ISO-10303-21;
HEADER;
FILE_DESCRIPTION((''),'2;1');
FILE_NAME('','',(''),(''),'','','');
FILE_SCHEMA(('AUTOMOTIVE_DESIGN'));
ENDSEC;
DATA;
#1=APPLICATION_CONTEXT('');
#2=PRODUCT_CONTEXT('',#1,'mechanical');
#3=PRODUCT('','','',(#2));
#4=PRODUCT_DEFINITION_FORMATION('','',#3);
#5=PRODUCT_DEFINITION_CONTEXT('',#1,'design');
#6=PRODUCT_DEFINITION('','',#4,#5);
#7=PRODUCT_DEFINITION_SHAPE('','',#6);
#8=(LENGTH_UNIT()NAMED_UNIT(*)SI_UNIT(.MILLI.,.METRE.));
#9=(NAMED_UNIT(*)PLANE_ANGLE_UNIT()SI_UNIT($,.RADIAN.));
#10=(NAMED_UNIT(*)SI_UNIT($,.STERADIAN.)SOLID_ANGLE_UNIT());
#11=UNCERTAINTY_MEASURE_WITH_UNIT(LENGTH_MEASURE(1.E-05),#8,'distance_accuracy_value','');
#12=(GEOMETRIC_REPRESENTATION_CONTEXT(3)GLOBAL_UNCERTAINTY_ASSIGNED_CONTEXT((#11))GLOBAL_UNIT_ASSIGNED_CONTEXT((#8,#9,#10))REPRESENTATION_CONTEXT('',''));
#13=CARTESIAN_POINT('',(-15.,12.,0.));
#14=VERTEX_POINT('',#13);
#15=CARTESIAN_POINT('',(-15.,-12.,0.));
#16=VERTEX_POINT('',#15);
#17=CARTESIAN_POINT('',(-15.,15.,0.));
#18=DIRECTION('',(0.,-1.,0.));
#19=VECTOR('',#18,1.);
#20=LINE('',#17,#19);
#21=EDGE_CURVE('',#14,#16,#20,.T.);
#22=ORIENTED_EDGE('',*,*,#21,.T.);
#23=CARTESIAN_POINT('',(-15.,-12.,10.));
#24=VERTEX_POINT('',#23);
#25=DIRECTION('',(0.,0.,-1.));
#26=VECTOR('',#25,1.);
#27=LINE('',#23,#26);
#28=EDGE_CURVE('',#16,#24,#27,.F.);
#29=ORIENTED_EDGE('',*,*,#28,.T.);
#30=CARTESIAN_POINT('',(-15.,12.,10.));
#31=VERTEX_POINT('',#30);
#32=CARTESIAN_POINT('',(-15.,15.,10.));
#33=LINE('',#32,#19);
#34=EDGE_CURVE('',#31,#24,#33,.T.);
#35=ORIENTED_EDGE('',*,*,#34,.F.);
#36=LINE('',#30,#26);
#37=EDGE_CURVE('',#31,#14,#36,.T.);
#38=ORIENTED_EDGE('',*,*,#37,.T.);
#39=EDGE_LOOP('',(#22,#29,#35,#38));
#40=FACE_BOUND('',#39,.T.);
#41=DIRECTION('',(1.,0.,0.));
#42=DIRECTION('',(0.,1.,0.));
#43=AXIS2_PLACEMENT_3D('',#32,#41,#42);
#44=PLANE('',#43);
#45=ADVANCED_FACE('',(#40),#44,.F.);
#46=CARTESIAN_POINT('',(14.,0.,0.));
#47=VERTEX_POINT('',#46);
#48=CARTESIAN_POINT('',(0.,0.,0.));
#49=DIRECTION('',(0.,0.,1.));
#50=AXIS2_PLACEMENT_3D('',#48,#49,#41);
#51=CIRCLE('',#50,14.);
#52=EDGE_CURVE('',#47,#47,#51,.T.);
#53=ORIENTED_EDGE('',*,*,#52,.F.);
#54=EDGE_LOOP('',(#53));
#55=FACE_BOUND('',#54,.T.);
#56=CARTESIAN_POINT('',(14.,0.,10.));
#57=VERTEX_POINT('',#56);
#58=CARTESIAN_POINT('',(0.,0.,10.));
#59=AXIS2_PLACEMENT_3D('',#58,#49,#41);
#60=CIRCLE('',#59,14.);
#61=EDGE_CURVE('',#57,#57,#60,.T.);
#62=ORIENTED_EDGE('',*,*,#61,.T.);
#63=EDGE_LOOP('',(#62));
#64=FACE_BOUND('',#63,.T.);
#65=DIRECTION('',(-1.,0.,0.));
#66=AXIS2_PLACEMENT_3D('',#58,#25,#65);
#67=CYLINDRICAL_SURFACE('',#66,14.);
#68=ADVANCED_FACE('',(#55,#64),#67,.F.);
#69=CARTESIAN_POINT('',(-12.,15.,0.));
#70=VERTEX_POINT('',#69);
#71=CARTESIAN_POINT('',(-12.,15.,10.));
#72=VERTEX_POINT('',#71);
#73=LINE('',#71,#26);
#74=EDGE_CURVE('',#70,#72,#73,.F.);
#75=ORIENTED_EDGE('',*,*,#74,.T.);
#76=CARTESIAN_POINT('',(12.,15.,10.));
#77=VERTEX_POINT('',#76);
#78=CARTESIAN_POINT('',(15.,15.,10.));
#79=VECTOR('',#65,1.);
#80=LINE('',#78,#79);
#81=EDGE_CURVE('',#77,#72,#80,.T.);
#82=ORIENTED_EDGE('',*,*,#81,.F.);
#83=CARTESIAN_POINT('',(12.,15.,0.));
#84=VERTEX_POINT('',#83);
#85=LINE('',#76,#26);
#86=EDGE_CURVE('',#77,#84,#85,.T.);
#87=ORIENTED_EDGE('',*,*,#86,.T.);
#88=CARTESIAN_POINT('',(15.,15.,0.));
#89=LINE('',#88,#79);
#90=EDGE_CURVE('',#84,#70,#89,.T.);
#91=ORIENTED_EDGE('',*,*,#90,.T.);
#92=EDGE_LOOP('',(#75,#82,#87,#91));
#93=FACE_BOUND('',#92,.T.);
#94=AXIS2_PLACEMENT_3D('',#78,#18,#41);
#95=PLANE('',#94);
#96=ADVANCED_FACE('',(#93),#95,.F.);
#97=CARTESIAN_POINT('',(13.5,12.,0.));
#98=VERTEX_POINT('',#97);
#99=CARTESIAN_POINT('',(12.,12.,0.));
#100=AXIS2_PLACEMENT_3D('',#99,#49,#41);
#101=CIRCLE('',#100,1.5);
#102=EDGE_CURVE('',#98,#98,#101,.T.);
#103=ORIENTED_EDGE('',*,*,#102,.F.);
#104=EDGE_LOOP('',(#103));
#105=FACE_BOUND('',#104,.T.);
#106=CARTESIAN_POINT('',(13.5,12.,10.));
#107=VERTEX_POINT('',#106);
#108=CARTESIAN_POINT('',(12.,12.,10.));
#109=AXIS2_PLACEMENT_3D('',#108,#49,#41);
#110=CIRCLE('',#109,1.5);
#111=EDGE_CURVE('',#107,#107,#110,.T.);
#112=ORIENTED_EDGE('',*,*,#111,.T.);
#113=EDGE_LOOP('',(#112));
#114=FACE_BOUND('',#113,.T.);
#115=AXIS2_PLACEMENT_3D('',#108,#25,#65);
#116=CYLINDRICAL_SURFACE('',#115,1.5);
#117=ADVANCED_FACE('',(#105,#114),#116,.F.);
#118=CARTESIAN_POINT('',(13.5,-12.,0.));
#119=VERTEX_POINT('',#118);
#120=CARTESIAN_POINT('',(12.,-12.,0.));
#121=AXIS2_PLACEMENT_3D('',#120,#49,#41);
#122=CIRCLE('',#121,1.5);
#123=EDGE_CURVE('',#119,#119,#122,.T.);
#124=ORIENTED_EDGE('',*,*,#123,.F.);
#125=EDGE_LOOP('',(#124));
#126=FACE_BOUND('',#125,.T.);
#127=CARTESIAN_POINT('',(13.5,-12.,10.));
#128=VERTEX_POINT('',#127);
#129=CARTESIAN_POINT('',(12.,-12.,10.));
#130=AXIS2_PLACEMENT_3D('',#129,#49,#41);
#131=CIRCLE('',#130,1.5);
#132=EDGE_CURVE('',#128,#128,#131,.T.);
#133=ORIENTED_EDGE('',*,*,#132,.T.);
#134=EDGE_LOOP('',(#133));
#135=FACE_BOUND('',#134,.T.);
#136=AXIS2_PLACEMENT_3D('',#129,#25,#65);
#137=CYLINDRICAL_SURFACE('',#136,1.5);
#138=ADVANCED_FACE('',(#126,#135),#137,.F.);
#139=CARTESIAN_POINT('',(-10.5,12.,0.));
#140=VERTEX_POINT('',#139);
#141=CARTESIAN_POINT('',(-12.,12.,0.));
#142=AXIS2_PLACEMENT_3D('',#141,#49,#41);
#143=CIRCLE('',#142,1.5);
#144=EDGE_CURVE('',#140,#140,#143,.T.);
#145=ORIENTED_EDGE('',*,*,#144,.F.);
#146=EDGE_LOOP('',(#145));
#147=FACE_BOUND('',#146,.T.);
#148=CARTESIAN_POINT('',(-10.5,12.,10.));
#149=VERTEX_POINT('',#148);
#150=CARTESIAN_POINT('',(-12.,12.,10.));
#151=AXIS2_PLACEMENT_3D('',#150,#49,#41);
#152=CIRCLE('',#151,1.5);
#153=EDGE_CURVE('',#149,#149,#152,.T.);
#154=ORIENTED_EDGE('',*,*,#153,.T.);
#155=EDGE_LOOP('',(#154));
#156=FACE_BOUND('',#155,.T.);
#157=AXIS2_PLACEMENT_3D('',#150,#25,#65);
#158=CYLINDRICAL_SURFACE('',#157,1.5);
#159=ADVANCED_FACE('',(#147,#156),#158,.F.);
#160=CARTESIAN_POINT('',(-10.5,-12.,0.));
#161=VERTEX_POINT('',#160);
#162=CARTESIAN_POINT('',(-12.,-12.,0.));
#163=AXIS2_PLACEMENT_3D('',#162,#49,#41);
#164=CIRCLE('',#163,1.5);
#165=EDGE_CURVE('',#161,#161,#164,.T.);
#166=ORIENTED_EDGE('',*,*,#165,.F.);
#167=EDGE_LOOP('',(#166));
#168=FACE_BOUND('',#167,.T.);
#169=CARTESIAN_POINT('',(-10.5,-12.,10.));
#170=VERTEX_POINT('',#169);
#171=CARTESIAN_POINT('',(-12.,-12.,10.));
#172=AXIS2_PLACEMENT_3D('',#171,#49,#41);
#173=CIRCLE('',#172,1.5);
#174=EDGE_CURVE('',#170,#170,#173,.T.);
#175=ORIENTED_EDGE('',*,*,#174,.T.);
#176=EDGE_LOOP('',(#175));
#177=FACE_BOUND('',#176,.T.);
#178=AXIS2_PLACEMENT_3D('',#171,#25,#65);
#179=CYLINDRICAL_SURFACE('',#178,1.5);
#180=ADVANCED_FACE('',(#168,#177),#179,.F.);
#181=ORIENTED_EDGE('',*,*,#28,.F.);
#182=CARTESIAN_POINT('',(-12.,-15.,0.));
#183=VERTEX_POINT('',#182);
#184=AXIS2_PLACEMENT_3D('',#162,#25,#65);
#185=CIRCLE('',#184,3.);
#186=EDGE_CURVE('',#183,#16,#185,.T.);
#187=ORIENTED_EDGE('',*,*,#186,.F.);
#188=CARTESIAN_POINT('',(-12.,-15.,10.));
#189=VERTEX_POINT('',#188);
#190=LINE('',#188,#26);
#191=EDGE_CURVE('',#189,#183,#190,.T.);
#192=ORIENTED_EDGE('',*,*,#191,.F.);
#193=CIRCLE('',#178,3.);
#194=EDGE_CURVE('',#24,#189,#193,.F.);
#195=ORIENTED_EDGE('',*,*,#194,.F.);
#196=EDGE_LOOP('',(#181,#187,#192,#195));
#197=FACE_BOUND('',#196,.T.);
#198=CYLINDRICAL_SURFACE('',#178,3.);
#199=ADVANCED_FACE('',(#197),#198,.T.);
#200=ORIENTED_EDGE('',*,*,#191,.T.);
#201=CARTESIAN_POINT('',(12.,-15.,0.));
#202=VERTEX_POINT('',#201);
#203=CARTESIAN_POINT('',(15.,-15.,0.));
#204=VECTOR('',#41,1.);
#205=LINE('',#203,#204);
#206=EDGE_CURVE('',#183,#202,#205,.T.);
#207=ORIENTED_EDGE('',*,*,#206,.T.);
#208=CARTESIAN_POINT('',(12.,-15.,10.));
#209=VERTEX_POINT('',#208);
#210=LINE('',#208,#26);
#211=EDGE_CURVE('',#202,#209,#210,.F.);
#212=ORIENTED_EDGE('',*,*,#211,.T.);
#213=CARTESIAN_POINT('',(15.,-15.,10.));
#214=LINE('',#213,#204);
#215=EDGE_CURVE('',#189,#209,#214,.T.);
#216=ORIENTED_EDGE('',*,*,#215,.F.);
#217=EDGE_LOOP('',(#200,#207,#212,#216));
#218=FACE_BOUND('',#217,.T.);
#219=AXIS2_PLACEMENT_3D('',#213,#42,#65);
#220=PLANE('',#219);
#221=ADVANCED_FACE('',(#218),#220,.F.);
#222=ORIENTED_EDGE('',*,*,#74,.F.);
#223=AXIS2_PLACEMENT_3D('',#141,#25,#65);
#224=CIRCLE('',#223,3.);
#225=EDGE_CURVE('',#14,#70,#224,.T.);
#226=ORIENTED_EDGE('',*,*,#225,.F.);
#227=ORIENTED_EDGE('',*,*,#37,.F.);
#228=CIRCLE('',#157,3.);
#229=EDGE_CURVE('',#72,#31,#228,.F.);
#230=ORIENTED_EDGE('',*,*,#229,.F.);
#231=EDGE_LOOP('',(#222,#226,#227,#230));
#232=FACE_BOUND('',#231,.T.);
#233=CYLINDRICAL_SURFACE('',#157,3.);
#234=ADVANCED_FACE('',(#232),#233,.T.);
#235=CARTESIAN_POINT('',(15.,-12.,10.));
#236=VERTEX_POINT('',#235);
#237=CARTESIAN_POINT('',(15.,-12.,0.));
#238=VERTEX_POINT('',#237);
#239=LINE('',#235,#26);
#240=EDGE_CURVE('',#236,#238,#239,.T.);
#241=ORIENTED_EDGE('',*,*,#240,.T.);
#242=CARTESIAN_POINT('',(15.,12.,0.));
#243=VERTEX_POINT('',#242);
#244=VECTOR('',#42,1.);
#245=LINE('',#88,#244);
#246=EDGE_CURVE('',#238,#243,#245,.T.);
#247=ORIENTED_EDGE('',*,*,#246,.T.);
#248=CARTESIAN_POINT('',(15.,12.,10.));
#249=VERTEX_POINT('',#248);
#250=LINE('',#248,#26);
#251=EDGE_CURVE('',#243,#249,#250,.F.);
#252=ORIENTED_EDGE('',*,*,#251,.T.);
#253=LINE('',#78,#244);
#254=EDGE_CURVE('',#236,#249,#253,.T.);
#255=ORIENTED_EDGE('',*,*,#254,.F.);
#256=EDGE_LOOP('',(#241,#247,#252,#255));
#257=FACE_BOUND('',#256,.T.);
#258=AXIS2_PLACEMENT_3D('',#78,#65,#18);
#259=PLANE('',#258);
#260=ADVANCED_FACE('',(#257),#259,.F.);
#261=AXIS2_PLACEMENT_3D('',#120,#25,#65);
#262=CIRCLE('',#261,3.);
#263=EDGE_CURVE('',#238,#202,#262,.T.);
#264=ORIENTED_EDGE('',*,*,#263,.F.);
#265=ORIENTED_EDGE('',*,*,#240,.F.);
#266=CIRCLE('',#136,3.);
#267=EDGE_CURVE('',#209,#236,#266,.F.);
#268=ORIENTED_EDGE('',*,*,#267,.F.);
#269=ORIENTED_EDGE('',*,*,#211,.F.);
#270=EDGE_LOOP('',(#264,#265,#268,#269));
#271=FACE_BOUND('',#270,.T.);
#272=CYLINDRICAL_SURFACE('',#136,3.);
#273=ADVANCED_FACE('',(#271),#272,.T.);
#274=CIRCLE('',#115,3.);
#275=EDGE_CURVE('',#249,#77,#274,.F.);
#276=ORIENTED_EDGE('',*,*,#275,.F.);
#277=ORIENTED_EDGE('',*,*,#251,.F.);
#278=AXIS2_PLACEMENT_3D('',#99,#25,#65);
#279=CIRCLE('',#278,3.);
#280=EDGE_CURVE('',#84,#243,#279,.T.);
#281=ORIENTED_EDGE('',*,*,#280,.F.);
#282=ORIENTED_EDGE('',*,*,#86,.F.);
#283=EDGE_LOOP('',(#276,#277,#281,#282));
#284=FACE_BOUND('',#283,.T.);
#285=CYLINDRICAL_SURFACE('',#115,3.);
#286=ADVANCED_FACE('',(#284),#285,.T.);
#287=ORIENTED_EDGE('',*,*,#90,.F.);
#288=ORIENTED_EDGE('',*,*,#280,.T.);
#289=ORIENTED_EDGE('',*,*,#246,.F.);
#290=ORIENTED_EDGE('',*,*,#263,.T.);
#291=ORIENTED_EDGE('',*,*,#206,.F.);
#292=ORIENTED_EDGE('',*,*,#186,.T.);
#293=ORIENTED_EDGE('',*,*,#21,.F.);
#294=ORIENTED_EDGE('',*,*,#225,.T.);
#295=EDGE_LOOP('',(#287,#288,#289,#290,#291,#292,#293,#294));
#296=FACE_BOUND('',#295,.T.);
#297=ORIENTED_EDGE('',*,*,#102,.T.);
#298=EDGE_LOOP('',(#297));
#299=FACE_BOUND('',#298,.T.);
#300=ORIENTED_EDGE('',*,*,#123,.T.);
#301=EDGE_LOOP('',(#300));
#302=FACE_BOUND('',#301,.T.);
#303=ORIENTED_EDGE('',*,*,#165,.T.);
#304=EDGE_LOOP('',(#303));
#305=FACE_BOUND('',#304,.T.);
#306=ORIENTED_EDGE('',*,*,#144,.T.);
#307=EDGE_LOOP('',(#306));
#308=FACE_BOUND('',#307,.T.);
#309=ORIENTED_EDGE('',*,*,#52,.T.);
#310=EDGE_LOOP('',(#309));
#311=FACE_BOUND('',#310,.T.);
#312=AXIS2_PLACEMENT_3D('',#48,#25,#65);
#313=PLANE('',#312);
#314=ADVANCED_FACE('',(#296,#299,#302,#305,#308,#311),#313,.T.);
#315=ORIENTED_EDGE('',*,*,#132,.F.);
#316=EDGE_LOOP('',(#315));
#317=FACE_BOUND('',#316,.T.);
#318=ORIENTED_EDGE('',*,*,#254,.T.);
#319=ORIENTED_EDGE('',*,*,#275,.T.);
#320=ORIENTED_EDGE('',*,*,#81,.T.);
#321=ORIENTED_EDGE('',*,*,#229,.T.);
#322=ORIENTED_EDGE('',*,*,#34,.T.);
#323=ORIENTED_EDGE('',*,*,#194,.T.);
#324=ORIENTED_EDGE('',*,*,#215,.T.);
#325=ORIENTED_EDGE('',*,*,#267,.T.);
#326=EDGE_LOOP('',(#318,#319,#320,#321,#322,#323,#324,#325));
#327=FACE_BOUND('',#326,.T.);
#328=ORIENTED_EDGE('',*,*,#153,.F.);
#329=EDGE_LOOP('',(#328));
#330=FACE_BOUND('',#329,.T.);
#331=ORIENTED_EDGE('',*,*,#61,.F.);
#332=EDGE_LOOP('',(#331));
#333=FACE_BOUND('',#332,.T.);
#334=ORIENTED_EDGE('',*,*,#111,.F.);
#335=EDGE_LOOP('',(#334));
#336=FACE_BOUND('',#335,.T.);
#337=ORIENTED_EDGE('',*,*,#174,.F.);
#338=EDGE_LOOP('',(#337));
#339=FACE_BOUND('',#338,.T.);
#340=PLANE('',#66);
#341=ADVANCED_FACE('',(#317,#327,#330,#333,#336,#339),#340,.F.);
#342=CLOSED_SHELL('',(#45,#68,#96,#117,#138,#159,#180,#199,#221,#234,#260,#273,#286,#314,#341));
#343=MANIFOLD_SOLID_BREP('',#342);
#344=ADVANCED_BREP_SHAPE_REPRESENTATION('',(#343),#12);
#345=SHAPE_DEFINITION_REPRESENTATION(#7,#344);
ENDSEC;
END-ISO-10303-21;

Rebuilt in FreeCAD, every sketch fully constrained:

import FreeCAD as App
import Part
import Sketcher

V = App.Vector


def edges_at(feature, points):
    """Names of the edges that pass closest to the given points."""
    edges = feature.Shape.Edges
    near = lambda p: min(range(len(edges)), key=lambda i: edges[i].distToShape(Part.Vertex(*p))[0])
    return sorted({f"Edge{near(p) + 1}" for p in points})


def add_polygon(sketch, points):
    """Adds a closed chain of lines whose ends are joined by coincident constraints."""
    first, n = sketch.GeometryCount, len(points)
    for a, b in zip(points, points[1:] + points[:1]):
        sketch.addGeometry(Part.LineSegment(App.Vector(*a, 0), App.Vector(*b, 0)), False)
    for i in range(n):
        sketch.addConstraint(Sketcher.Constraint("Coincident", first + i, 2, first + (i + 1) % n, 1))

doc = App.newDocument("Part")
body = doc.addObject("PartDesign::Body", "Body")

sketch1 = body.newObject("Sketcher::SketchObject", "Sketch")
sketch1.AttachmentSupport = (doc.getObject("XY_Plane"), [""])
sketch1.MapMode = "FlatFace"
add_polygon(sketch1, [(-15, 15), (-15, -15), (15, -15), (15, 15)])
sketch1.addGeometry(Part.Circle(V(-12, -12, 0), V(0, 0, 1), 1.5), False)
sketch1.addGeometry(Part.Circle(V(12, -12, 0), V(0, 0, 1), 1.5), False)
sketch1.addGeometry(Part.Circle(V(-12, 12, 0), V(0, 0, 1), 1.5), False)
sketch1.addGeometry(Part.Circle(V(0, 0, 0), V(0, 0, 1), 14), False)
sketch1.addGeometry(Part.Circle(V(12, 12, 0), V(0, 0, 1), 1.5), False)
sketch1.addConstraint([
    Sketcher.Constraint("Vertical", 0),
    Sketcher.Constraint("Horizontal", 1),
    Sketcher.Constraint("Vertical", 2),
    Sketcher.Constraint("Horizontal", 3),
    Sketcher.Constraint("Coincident", 7, 3, -1, 1),
    Sketcher.Constraint("Equal", 4, 5),
    Sketcher.Constraint("Equal", 5, 6),
    Sketcher.Constraint("Equal", 6, 8),
    Sketcher.Constraint("Symmetric", 5, 3, 6, 3, -1, 1),
    Sketcher.Constraint("Symmetric", 4, 3, 8, 3, -1, 1),
    Sketcher.Constraint("Symmetric", 0, 2, 2, 2, -1, 1),
    Sketcher.Constraint("Symmetric", 4, 3, 5, 3, -2),
    Sketcher.Constraint("Equal", 3, 0),
    Sketcher.Constraint("Diameter", 4, 3.0),
    Sketcher.Constraint("Diameter", 7, 28.0),
    Sketcher.Constraint("DistanceX", 1, 1, 1, 2, 30.0),
    Sketcher.Constraint("DistanceX", 4, 3, -1, 1, 12.0),
    Sketcher.Constraint("DistanceY", 4, 3, -1, 1, 12.0),
])
pad1 = body.newObject("PartDesign::Pad", "Pad")
pad1.Profile = sketch1
pad1.Length = 10
doc.recompute()

fillet = body.newObject("PartDesign::Fillet", "Fillet")
fillet.Base = (pad1, edges_at(pad1, [
    (-15, 15, 5),
    (15, 15, 5),
    (15, -15, 5),
    (-15, -15, 5),
]))
fillet.Radius = 3

doc.recompute()
